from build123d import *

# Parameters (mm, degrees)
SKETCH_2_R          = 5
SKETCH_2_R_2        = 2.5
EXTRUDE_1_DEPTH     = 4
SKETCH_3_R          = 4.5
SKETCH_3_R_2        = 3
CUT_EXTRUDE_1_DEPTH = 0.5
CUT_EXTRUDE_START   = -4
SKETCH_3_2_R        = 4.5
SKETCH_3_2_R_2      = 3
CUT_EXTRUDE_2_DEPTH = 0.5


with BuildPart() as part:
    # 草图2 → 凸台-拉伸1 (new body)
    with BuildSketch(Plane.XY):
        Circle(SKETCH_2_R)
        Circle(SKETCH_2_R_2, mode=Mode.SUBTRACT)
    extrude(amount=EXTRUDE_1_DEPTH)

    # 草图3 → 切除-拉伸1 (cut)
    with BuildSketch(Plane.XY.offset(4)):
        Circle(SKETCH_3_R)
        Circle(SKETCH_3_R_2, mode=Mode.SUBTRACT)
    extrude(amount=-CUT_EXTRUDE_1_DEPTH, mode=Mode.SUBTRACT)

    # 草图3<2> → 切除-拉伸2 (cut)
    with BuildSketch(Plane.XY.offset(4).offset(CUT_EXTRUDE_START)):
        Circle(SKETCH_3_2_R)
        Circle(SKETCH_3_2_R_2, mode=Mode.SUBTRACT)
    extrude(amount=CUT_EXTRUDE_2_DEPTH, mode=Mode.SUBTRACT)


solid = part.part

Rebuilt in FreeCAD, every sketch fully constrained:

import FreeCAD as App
import Part
import Sketcher

V = App.Vector

doc = App.newDocument("Part")
params = doc.addObject("Spreadsheet::Sheet", "Params")
for row, (alias, value) in enumerate([
    ("sketch1_diameter", "10 mm"),
    ("sketch1_diameter2", "5 mm"),
    ("pad1_length", "4 mm"),
    ("sketch2_diameter", "9 mm"),
    ("sketch2_diameter2", "6 mm"),
    ("pocket1_length", "0.5 mm"),
    ("sketch3_diameter", "9 mm"),
    ("sketch3_diameter2", "6 mm"),
    ("pocket2_length", "0.5 mm"),
], start=1):
    params.set(f"A{row}", alias)
    params.set(f"B{row}", "=" + value)
    params.setAlias(f"B{row}", alias)

body = doc.addObject("PartDesign::Body", "Body")

# Sketch on XY plane
sketch1 = doc.addObject("Sketcher::SketchObject", "Sketch")
body.addObject(sketch1)
sketch1.AttachmentSupport = (doc.XY_Plane, [""])
sketch1.MapMode = "FlatFace"
sketch1.addGeometry([
    Part.Circle(V(0, 0, 0), V(0, 0, 1), 5),
    Part.Circle(V(0, 0, 0), V(0, 0, 1), 2.5),
], False)
sketch1.addConstraint([
    Sketcher.Constraint("Coincident", 0, 3, -1, 1),
    Sketcher.Constraint("Coincident", 1, 3, -1, 1),
    Sketcher.Constraint("Diameter", 0, 10.0),
    Sketcher.Constraint("Diameter", 1, 5.0),
])
sketch1.setExpression("Constraints[2]", "Params.sketch1_diameter")
sketch1.setExpression("Constraints[3]", "Params.sketch1_diameter2")
pad1 = doc.addObject("PartDesign::Pad", "Pad")
body.addObject(pad1)
pad1.Profile = sketch1
pad1.setExpression("Length", "Params.pad1_length")

# Sketch on XY plane
sketch2 = doc.addObject("Sketcher::SketchObject", "Sketch001")
body.addObject(sketch2)
sketch2.AttachmentSupport = (doc.XY_Plane, [""])
sketch2.MapMode = "FlatFace"
sketch2.AttachmentOffset = App.Placement(V(0, 0, 4), App.Rotation())
sketch2.addGeometry([
    Part.Circle(V(0, 0, 0), V(0, 0, 1), 4.5),
    Part.Circle(V(0, 0, 0), V(0, 0, 1), 3),
], False)
sketch2.addConstraint([
    Sketcher.Constraint("Coincident", 0, 3, -1, 1),
    Sketcher.Constraint("Coincident", 1, 3, -1, 1),
    Sketcher.Constraint("Diameter", 0, 9.0),
    Sketcher.Constraint("Diameter", 1, 6.0),
])
sketch2.setExpression("Constraints[2]", "Params.sketch2_diameter")
sketch2.setExpression("Constraints[3]", "Params.sketch2_diameter2")
pocket1 = doc.addObject("PartDesign::Pocket", "Pocket")
body.addObject(pocket1)
pocket1.Profile = sketch2
pocket1.setExpression("Length", "Params.pocket1_length")

# Sketch on XY plane
sketch3 = doc.addObject("Sketcher::SketchObject", "Sketch002")
body.addObject(sketch3)
sketch3.AttachmentSupport = (doc.XY_Plane, [""])
sketch3.MapMode = "FlatFace"
sketch3.addGeometry([
    Part.Circle(V(0, 0, 0), V(0, 0, 1), 4.5),
    Part.Circle(V(0, 0, 0), V(0, 0, 1), 3),
], False)
sketch3.addConstraint([
    Sketcher.Constraint("Coincident", 0, 3, -1, 1),
    Sketcher.Constraint("Coincident", 1, 3, -1, 1),
    Sketcher.Constraint("Diameter", 0, 9.0),
    Sketcher.Constraint("Diameter", 1, 6.0),
])
sketch3.setExpression("Constraints[2]", "Params.sketch3_diameter")
sketch3.setExpression("Constraints[3]", "Params.sketch3_diameter2")
pocket2 = doc.addObject("PartDesign::Pocket", "Pocket001")
body.addObject(pocket2)
pocket2.Profile = sketch3
pocket2.setExpression("Length", "Params.pocket2_length")
pocket2.Reversed = True

doc.recompute()
